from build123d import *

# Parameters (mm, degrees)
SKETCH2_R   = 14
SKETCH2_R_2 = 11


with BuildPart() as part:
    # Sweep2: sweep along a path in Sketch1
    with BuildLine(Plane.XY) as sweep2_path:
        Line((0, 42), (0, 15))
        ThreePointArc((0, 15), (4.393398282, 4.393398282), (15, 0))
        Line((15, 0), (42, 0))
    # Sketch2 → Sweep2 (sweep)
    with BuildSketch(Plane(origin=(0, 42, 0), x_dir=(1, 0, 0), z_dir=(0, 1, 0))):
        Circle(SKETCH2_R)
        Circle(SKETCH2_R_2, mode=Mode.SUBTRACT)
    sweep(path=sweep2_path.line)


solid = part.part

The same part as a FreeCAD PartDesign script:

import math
import FreeCAD as App
import Part
import Sketcher
Q = App.Units.Quantity

doc = App.newDocument("Part")
body = doc.addObject("PartDesign::Body", "Body")

sketch1 = doc.addObject("Sketcher::SketchObject", "Sketch")
body.addObject(sketch1)
sketch1.AttachmentSupport = (doc.XZ_Plane, [""])
sketch1.MapMode = "FlatFace"
sketch1.AttachmentOffset = App.Placement(App.Vector(0, 0, -42), App.Rotation())
sketch1.addGeometry([
    Part.Circle(App.Vector(0, 0, 0), App.Vector(0, 0, 1), 14),
    Part.Circle(App.Vector(0, 0, 0), App.Vector(0, 0, 1), 11),
], False)
sketch1.addConstraint([
    Sketcher.Constraint("Coincident", 0, 3, -1, 1),
    Sketcher.Constraint("Coincident", 1, 3, -1, 1),
    Sketcher.Constraint("Diameter", 0, Q("28 mm")),
    Sketcher.Constraint("Diameter", 1, Q("22 mm")),
])

sketch2 = doc.addObject("Sketcher::SketchObject", "Sketch001")
body.addObject(sketch2)
sketch2.AttachmentSupport = (doc.XY_Plane, [""])
sketch2.MapMode = "FlatFace"
sketch2.addGeometry([
    Part.LineSegment(App.Vector(0, 42, 0), App.Vector(0, 15, 0)),
    Part.ArcOfCircle(Part.Circle(App.Vector(15, 15, 0), App.Vector(0, 0, 1), 15), math.radians(180), math.radians(270)),
    Part.LineSegment(App.Vector(15, 0, 0), App.Vector(42, 0, 0)),
], False)
sketch2.addConstraint([
    Sketcher.Constraint("Tangent", 0, 2, 1, 1),
    Sketcher.Constraint("Tangent", 1, 2, 2, 1),
    Sketcher.Constraint("Vertical", 0),
    Sketcher.Constraint("Horizontal", 2),
    Sketcher.Constraint("PointOnObject", 0, 1, -2),
    Sketcher.Constraint("PointOnObject", 1, 2, -1),
    Sketcher.Constraint("Equal", 2, 0),
    Sketcher.Constraint("Radius", 1, Q("15 mm")),
    Sketcher.Constraint("DistanceX", 2, 1, 2, 2, Q("27 mm")),
])
doc.recompute()

additivepipe = doc.addObject("PartDesign::AdditivePipe", "AdditivePipe")
body.addObject(additivepipe)
additivepipe.Profile = sketch1
additivepipe.Spine = (sketch2, ["Edge1", "Edge2", "Edge3"])

doc.recompute()
